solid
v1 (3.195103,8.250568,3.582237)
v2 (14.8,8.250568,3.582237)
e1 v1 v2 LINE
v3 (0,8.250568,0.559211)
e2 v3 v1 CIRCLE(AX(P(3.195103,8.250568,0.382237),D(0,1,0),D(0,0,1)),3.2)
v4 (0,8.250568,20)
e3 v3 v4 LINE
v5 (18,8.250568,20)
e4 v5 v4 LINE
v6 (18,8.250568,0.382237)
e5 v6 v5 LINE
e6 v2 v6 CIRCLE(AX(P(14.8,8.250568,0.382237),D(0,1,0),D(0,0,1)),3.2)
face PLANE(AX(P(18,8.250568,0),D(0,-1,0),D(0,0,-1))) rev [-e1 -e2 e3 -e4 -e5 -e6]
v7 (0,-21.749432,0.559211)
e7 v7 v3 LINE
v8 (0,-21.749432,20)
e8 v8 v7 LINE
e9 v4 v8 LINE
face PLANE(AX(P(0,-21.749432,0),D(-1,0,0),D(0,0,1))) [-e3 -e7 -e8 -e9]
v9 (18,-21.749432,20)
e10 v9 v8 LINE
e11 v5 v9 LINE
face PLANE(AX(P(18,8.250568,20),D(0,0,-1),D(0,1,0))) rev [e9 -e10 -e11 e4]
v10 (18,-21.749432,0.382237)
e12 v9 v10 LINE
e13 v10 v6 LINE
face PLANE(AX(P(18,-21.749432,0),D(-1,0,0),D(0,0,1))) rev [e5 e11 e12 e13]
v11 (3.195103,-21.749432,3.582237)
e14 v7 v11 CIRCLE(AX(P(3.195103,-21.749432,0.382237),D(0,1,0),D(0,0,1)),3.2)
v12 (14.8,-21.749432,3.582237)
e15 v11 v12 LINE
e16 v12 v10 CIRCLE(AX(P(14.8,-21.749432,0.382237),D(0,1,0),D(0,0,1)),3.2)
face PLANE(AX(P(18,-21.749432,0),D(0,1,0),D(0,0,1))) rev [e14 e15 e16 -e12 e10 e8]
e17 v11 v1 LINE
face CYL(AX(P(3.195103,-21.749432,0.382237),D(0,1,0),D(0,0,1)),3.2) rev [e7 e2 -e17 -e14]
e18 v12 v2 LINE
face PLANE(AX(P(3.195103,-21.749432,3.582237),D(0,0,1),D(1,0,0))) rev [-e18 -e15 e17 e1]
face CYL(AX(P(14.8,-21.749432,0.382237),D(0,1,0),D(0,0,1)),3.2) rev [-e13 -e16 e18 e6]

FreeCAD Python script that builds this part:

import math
import FreeCAD as App
import Part
import Sketcher
from FreeCAD import Vector

doc = App.newDocument("Part")
params = doc.addObject("Spreadsheet::Sheet", "Params")
for row, (alias, value) in enumerate([
    ("sketch1_width", "30 mm"),
    ("sketch1_height", "20 mm"),
    ("pad1_length", "18 mm"),
    ("sketch2_radius", "3.2 mm"),
], start=1):
    params.set(f"A{row}", alias)
    params.set(f"B{row}", "=" + value)
    params.setAlias(f"B{row}", alias)

body = doc.addObject("PartDesign::Body", "Body")

# Sketch on YZ plane
sketch1 = doc.addObject("Sketcher::SketchObject", "Sketch")
body.addObject(sketch1)
sketch1.AttachmentSupport = (doc.YZ_Plane, [""])
sketch1.MapMode = "FlatFace"
sketch1.addGeometry(Part.LineSegment(Vector(8, 20, 0), Vector(-22, 20, 0)), False)
sketch1.addGeometry(Part.LineSegment(Vector(-22, 20, 0), Vector(-22, 0, 0)), False)
sketch1.addGeometry(Part.LineSegment(Vector(-22, 0, 0), Vector(8, 0, 0)), False)
sketch1.addGeometry(Part.LineSegment(Vector(8, 0, 0), Vector(8, 20, 0)), False)
sketch1.addConstraint(Sketcher.Constraint("Coincident", 0, 2, 1, 1))
sketch1.addConstraint(Sketcher.Constraint("Coincident", 1, 2, 2, 1))
sketch1.addConstraint(Sketcher.Constraint("Coincident", 2, 2, 3, 1))
sketch1.addConstraint(Sketcher.Constraint("Coincident", 3, 2, 0, 1))
sketch1.addConstraint(Sketcher.Constraint("Horizontal", 0))
sketch1.addConstraint(Sketcher.Constraint("Vertical", 1))
sketch1.addConstraint(Sketcher.Constraint("Horizontal", 2))
sketch1.addConstraint(Sketcher.Constraint("Vertical", 3))
sketch1.addConstraint(Sketcher.Constraint("PointOnObject", 1, 2, -1))
sketch1.addConstraint(Sketcher.Constraint("DistanceX", 0, 2, 0, 1, 30.0))
sketch1.addConstraint(Sketcher.Constraint("DistanceY", 1, 2, 1, 1, 20.0))
sketch1.addConstraint(Sketcher.Constraint("DistanceX", 0, 2, -1, 1, 21.749432))
sketch1.setExpression("Constraints[9]", "Params.sketch1_width")
sketch1.setExpression("Constraints[10]", "Params.sketch1_height")
pad1 = doc.addObject("PartDesign::Pad", "Pad")
body.addObject(pad1)
pad1.Profile = sketch1
pad1.setExpression("Length", "Params.pad1_length")

# Sketch on XZ plane
sketch2 = doc.addObject("Sketcher::SketchObject", "Sketch001")
body.addObject(sketch2)
sketch2.AttachmentSupport = (doc.XZ_Plane, [""])
sketch2.MapMode = "FlatFace"
sketch2.AttachmentOffset = App.Placement(Vector(0, 0, -8.250568), App.Rotation())
sketch2.addGeometry(Part.LineSegment(Vector(18, -0.1, 0), Vector(0, -0.1, 0)), False)
sketch2.addGeometry(Part.LineSegment(Vector(0, -0.1, 0), Vector(0, 0.4, 0)), False)
sketch2.addGeometry(Part.ArcOfCircle(Part.Circle(Vector(3.2, 0.4, 0), Vector(0, 0, 1), 3.2), math.radians(90), math.radians(180)), False)
sketch2.addGeometry(Part.LineSegment(Vector(3.2, 3.6, 0), Vector(14.8, 3.6, 0)), False)
sketch2.addGeometry(Part.ArcOfCircle(Part.Circle(Vector(14.8, 0.4, 0), Vector(0, 0, 1), 3.2), math.radians(0), math.radians(90)), False)
sketch2.addGeometry(Part.LineSegment(Vector(18, 0.4, 0), Vector(18, -0.1, 0)), False)
sketch2.addConstraint(Sketcher.Constraint("Coincident", 0, 2, 1, 1))
sketch2.addConstraint(Sketcher.Constraint("Tangent", 1, 2, 2, 2))
sketch2.addConstraint(Sketcher.Constraint("Tangent", 2, 1, 3, 1))
sketch2.addConstraint(Sketcher.Constraint("Tangent", 3, 2, 4, 2))
sketch2.addConstraint(Sketcher.Constraint("Tangent", 4, 1, 5, 1))
sketch2.addConstraint(Sketcher.Constraint("Coincident", 5, 2, 0, 1))
sketch2.addConstraint(Sketcher.Constraint("Horizontal", 0))
sketch2.addConstraint(Sketcher.Constraint("Vertical", 1))
sketch2.addConstraint(Sketcher.Constraint("Horizontal", 3))
sketch2.addConstraint(Sketcher.Constraint("Vertical", 5))
sketch2.addConstraint(Sketcher.Constraint("Equal", 2, 4))
sketch2.addConstraint(Sketcher.Constraint("Radius", 2, 3.2))
sketch2.addConstraint(Sketcher.Constraint("DistanceX", -1, 1, 4, 1, 18.0))
sketch2.addConstraint(Sketcher.Constraint("DistanceY", 1, 1, 1, 2, 0.529069))
sketch2.addConstraint(Sketcher.Constraint("DistanceX", 0, 2, 0, 1, 18.004897))
sketch2.addConstraint(Sketcher.Constraint("DistanceY", -1, 1, 2, 3, 0.382237))
sketch2.setExpression("Constraints[11]", "Params.sketch2_radius")
pocket1 = doc.addObject("PartDesign::Pocket", "Pocket")
body.addObject(pocket1)
pocket1.Profile = sketch2
pocket1.Type = "ThroughAll"
pocket1.Reversed = True

doc.recompute()
